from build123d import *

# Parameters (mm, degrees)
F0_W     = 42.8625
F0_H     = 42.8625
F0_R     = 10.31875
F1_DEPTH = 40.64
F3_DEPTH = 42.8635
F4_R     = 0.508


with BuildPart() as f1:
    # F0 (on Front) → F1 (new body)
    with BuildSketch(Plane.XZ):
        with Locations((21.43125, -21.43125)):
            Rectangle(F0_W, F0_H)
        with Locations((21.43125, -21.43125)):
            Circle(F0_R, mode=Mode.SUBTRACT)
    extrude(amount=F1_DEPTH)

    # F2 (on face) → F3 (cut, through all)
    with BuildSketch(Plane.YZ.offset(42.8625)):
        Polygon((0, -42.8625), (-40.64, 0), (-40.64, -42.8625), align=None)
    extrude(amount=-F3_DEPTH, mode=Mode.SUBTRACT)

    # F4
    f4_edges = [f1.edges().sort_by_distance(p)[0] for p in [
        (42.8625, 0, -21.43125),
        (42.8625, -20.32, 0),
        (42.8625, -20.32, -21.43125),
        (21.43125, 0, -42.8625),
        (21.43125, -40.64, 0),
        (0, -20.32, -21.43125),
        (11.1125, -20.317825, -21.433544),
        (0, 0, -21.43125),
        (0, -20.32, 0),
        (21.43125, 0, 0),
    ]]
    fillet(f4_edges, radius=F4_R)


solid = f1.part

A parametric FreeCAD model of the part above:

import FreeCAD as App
import Part
import Sketcher
from FreeCAD import Vector
Q = App.Units.Quantity


def edges_at(feature, points):
    """Names of the edges that pass closest to the given points."""
    edges = feature.Shape.Edges
    near = lambda p: min(range(len(edges)), key=lambda i: edges[i].distToShape(Part.Vertex(*p))[0])
    return sorted({f"Edge{near(p) + 1}" for p in points})


def add_polygon(sketch, points):
    """Adds a closed chain of lines whose ends are joined by coincident constraints."""
    first, n = sketch.GeometryCount, len(points)
    for a, b in zip(points, points[1:] + points[:1]):
        sketch.addGeometry(Part.LineSegment(App.Vector(*a, 0), App.Vector(*b, 0)), False)
    for i in range(n):
        sketch.addConstraint(Sketcher.Constraint("Coincident", first + i, 2, first + (i + 1) % n, 1))

doc = App.newDocument("Part")
body = doc.addObject("PartDesign::Body", "Body")

sketch1 = body.newObject("Sketcher::SketchObject", "Sketch")
sketch1.AttachmentSupport = (doc.getObject("XZ_Plane"), [""])
sketch1.MapMode = "FlatFace"
add_polygon(sketch1, [(0, 0), (0, -43), (43, -43), (43, 0)])
sketch1.addGeometry(Part.Circle(Vector(21, -21, 0), Vector(0, 0, 1), 10), False)
sketch1.addConstraint(Sketcher.Constraint("Vertical", 0))
sketch1.addConstraint(Sketcher.Constraint("Horizontal", 1))
sketch1.addConstraint(Sketcher.Constraint("Vertical", 2))
sketch1.addConstraint(Sketcher.Constraint("Horizontal", 3))
sketch1.addConstraint(Sketcher.Constraint("Coincident", 3, 2, -1, 1))
sketch1.addConstraint(Sketcher.Constraint("Equal", 3, 0))
sketch1.addConstraint(Sketcher.Constraint("Diameter", 4, Q("0.8125 in")))
sketch1.addConstraint(Sketcher.Constraint("DistanceX", 1, 1, 1, 2, Q("1.6875 in")))
sketch1.addConstraint(Sketcher.Constraint("DistanceX", -1, 1, 4, 3, Q("0.84375 in")))
sketch1.addConstraint(Sketcher.Constraint("DistanceY", 4, 3, -1, 1, Q("0.84375 in")))
pad1 = body.newObject("PartDesign::Pad", "Pad")
pad1.Profile = sketch1
pad1.Length = Q("1.6 in")

sketch2 = body.newObject("Sketcher::SketchObject", "Sketch001")
sketch2.AttachmentSupport = (doc.getObject("YZ_Plane"), [""])
sketch2.MapMode = "FlatFace"
sketch2.AttachmentOffset = App.Placement(Vector(0, 0, 1.6875 * 25.4), App.Rotation())
add_polygon(sketch2, [(0, -43), (-41, 0), (-41, -43)])
sketch2.addConstraint(Sketcher.Constraint("Vertical", 1))
sketch2.addConstraint(Sketcher.Constraint("Horizontal", 2))
sketch2.addConstraint(Sketcher.Constraint("PointOnObject", 0, 2, -1))
sketch2.addConstraint(Sketcher.Constraint("PointOnObject", 2, 2, -2))
sketch2.addConstraint(Sketcher.Constraint("DistanceX", 2, 1, 2, 2, Q("1.6 in")))
sketch2.addConstraint(Sketcher.Constraint("DistanceY", 1, 2, 1, 1, Q("1.6875 in")))
pocket1 = body.newObject("PartDesign::Pocket", "Pocket")
pocket1.Profile = sketch2
pocket1.Type = "ThroughAll"
doc.recompute()

fillet = body.newObject("PartDesign::Fillet", "Fillet")
fillet.Base = (pocket1, edges_at(pocket1, [
    (42.862, 0, -21.431),
    (42.862, -20.32, 0),
    (42.862, -20.32, -21.431),
    (21.431, 0, -42.862),
    (21.431, -40.64, 0),
    (0, -20.32, -21.431),
    (11.113, -20.318, -21.434),
    (0, 0, -21.431),
    (0, -20.32, 0),
    (21.431, 0, 0),
]))
fillet.Radius = Q("0.02 in")

doc.recompute()
